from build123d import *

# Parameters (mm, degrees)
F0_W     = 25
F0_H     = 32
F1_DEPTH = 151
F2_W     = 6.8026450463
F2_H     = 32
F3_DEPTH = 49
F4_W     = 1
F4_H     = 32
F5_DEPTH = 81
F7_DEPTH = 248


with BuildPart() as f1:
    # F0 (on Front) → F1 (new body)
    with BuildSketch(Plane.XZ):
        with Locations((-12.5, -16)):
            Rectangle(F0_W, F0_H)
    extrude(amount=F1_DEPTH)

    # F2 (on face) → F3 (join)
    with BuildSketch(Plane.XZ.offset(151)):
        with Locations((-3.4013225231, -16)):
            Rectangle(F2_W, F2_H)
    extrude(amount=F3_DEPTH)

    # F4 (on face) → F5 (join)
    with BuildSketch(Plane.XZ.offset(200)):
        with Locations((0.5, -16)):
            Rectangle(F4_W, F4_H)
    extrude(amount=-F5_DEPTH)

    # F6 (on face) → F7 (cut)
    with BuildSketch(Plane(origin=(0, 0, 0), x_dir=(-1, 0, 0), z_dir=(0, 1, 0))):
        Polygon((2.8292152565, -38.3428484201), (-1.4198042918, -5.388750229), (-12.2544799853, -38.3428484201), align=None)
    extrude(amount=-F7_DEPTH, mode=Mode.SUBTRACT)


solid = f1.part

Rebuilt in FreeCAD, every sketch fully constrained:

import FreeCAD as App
import Part
import Sketcher

doc = App.newDocument("Part")
body = doc.addObject("PartDesign::Body", "Body")

# Sketch on XZ plane
sketch1 = body.newObject("Sketcher::SketchObject", "Sketch")
sketch1.AttachmentSupport = (doc.getObject("XZ_Plane"), [""])
sketch1.MapMode = "FlatFace"
sketch1.addGeometry([
    Part.LineSegment(App.Vector(-25, 0, 0), App.Vector(-25, -32, 0)),
    Part.LineSegment(App.Vector(-25, -32, 0), App.Vector(0, -32, 0)),
    Part.LineSegment(App.Vector(0, -32, 0), App.Vector(0, 0, 0)),
    Part.LineSegment(App.Vector(0, 0, 0), App.Vector(-25, 0, 0)),
], False)
sketch1.addConstraint([
    Sketcher.Constraint("Coincident", 0, 2, 1, 1),
    Sketcher.Constraint("Coincident", 1, 2, 2, 1),
    Sketcher.Constraint("Coincident", 2, 2, 3, 1),
    Sketcher.Constraint("Coincident", 3, 2, 0, 1),
    Sketcher.Constraint("Vertical", 0),
    Sketcher.Constraint("Horizontal", 1),
    Sketcher.Constraint("Vertical", 2),
    Sketcher.Constraint("Horizontal", 3),
    Sketcher.Constraint("Coincident", 2, 2, -1, 1),
    Sketcher.Constraint("DistanceX", 1, 1, 1, 2, 25.0),
    Sketcher.Constraint("DistanceY", 0, 2, 0, 1, 32.0),
])
pad1 = body.newObject("PartDesign::Pad", "Pad")
pad1.Profile = sketch1
pad1.Length = 151

# Sketch on XZ plane
sketch2 = body.newObject("Sketcher::SketchObject", "Sketch001")
sketch2.AttachmentSupport = (doc.getObject("XZ_Plane"), [""])
sketch2.MapMode = "FlatFace"
sketch2.AttachmentOffset = App.Placement(App.Vector(0, 0, 151), App.Rotation())
sketch2.addGeometry([
    Part.LineSegment(App.Vector(-7, 0, 0), App.Vector(-7, -32, 0)),
    Part.LineSegment(App.Vector(-7, -32, 0), App.Vector(0, -32, 0)),
    Part.LineSegment(App.Vector(0, -32, 0), App.Vector(0, 0, 0)),
    Part.LineSegment(App.Vector(0, 0, 0), App.Vector(-7, 0, 0)),
], False)
sketch2.addConstraint([
    Sketcher.Constraint("Coincident", 0, 2, 1, 1),
    Sketcher.Constraint("Coincident", 1, 2, 2, 1),
    Sketcher.Constraint("Coincident", 2, 2, 3, 1),
    Sketcher.Constraint("Coincident", 3, 2, 0, 1),
    Sketcher.Constraint("Vertical", 0),
    Sketcher.Constraint("Horizontal", 1),
    Sketcher.Constraint("Vertical", 2),
    Sketcher.Constraint("Horizontal", 3),
    Sketcher.Constraint("Coincident", 2, 2, -1, 1),
    Sketcher.Constraint("DistanceY", 0, 2, 0, 1, 32.0),
    Sketcher.Constraint("DistanceX", 1, 1, 1, 2, 6.802645),
])
pad2 = body.newObject("PartDesign::Pad", "Pad001")
pad2.Profile = sketch2
pad2.Length = 49

# Sketch on XZ plane
sketch3 = body.newObject("Sketcher::SketchObject", "Sketch002")
sketch3.AttachmentSupport = (doc.getObject("XZ_Plane"), [""])
sketch3.MapMode = "FlatFace"
sketch3.AttachmentOffset = App.Placement(App.Vector(0, 0, 200), App.Rotation())
sketch3.addGeometry([
    Part.LineSegment(App.Vector(0, 0, 0), App.Vector(0, -32, 0)),
    Part.LineSegment(App.Vector(0, -32, 0), App.Vector(1, -32, 0)),
    Part.LineSegment(App.Vector(1, -32, 0), App.Vector(1, 0, 0)),
    Part.LineSegment(App.Vector(1, 0, 0), App.Vector(0, 0, 0)),
], False)
sketch3.addConstraint([
    Sketcher.Constraint("Coincident", 0, 2, 1, 1),
    Sketcher.Constraint("Coincident", 1, 2, 2, 1),
    Sketcher.Constraint("Coincident", 2, 2, 3, 1),
    Sketcher.Constraint("Coincident", 3, 2, 0, 1),
    Sketcher.Constraint("Vertical", 0),
    Sketcher.Constraint("Horizontal", 1),
    Sketcher.Constraint("Vertical", 2),
    Sketcher.Constraint("Horizontal", 3),
    Sketcher.Constraint("Coincident", 3, 2, -1, 1),
    Sketcher.Constraint("DistanceX", 1, 1, 1, 2, 1.0),
    Sketcher.Constraint("DistanceY", 0, 2, 0, 1, 32.0),
])
pad3 = body.newObject("PartDesign::Pad", "Pad002")
pad3.Profile = sketch3
pad3.Length = 81
pad3.Reversed = True

# Sketch on XZ plane
sketch4 = body.newObject("Sketcher::SketchObject", "Sketch003")
sketch4.AttachmentSupport = (doc.getObject("XZ_Plane"), [""])
sketch4.MapMode = "FlatFace"
sketch4.addGeometry([
    Part.LineSegment(App.Vector(-3, -38, 0), App.Vector(1, -5, 0)),
    Part.LineSegment(App.Vector(1, -5, 0), App.Vector(12, -38, 0)),
    Part.LineSegment(App.Vector(12, -38, 0), App.Vector(-3, -38, 0)),
], False)
sketch4.addConstraint([
    Sketcher.Constraint("Coincident", 0, 2, 1, 1),
    Sketcher.Constraint("Coincident", 1, 2, 2, 1),
    Sketcher.Constraint("Coincident", 2, 2, 0, 1),
    Sketcher.Constraint("Horizontal", 2),
    Sketcher.Constraint("Distance", 0, 33.226898),
    Sketcher.Constraint("DistanceY", 1, 2, 0, 2, 32.954098),
    Sketcher.Constraint("Distance", 1, 34.68952),
    Sketcher.Constraint("DistanceY", 0, 2, -1, 1, 5.38875),
    Sketcher.Constraint("DistanceX", -1, 1, 1, 2, 12.25448),
])
pocket1 = body.newObject("PartDesign::Pocket", "Pocket")
pocket1.Profile = sketch4
pocket1.Length = 248
pocket1.Reversed = True

doc.recompute()
